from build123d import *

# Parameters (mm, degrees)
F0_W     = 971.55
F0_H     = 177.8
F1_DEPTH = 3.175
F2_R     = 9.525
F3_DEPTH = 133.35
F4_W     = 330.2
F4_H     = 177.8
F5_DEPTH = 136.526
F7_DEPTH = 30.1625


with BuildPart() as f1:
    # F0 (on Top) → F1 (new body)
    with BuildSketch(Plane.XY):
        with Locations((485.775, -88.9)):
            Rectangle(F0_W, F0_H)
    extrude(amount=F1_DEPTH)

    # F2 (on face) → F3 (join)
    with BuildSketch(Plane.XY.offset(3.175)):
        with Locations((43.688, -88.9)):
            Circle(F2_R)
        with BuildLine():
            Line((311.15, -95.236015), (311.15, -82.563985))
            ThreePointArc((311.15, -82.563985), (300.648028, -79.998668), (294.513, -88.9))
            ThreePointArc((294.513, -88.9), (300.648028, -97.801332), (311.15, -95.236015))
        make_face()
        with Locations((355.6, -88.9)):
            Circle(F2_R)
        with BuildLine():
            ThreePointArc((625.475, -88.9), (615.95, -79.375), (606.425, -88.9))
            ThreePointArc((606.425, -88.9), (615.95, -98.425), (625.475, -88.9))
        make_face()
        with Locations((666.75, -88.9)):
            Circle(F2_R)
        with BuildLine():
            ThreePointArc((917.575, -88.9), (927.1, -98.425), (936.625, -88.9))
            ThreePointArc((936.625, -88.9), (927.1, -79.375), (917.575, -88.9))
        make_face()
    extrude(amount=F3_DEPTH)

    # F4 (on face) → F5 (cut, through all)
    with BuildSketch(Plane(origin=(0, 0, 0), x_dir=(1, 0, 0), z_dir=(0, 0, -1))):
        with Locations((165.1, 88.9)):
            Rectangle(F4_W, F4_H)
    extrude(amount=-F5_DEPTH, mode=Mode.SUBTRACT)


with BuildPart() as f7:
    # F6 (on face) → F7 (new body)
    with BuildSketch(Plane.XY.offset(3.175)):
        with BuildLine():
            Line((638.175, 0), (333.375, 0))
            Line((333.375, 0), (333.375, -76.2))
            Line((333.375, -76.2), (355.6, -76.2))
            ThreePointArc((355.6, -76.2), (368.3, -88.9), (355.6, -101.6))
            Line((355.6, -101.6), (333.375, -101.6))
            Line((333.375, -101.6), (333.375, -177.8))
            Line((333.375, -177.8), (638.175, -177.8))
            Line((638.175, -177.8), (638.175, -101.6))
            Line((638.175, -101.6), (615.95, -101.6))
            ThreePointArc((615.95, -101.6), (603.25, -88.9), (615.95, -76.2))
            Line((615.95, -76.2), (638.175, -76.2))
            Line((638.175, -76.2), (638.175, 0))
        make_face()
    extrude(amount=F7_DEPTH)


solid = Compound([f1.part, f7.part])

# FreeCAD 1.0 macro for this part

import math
import FreeCAD as App
import Part
import Sketcher
Q = App.Units.Quantity

doc = App.newDocument("Part")
body = doc.addObject("PartDesign::Body", "Body")

# Sketch on XY plane
sketch1 = doc.addObject("Sketcher::SketchObject", "Sketch")
body.addObject(sketch1)
sketch1.AttachmentSupport = (doc.XY_Plane, [""])
sketch1.MapMode = "FlatFace"
sketch1.addGeometry(Part.LineSegment(App.Vector(0, 0, 0), App.Vector(0, -178, 0)), False)
sketch1.addGeometry(Part.LineSegment(App.Vector(0, -178, 0), App.Vector(972, -178, 0)), False)
sketch1.addGeometry(Part.LineSegment(App.Vector(972, -178, 0), App.Vector(972, 0, 0)), False)
sketch1.addGeometry(Part.LineSegment(App.Vector(972, 0, 0), App.Vector(0, 0, 0)), False)
sketch1.addConstraint(Sketcher.Constraint("Coincident", 0, 2, 1, 1))
sketch1.addConstraint(Sketcher.Constraint("Coincident", 1, 2, 2, 1))
sketch1.addConstraint(Sketcher.Constraint("Coincident", 2, 2, 3, 1))
sketch1.addConstraint(Sketcher.Constraint("Coincident", 3, 2, 0, 1))
sketch1.addConstraint(Sketcher.Constraint("Vertical", 0))
sketch1.addConstraint(Sketcher.Constraint("Horizontal", 1))
sketch1.addConstraint(Sketcher.Constraint("Vertical", 2))
sketch1.addConstraint(Sketcher.Constraint("Horizontal", 3))
sketch1.addConstraint(Sketcher.Constraint("Coincident", 3, 2, -1, 1))
sketch1.addConstraint(Sketcher.Constraint("DistanceY", 0, 2, 0, 1, Q("7 in")))
sketch1.addConstraint(Sketcher.Constraint("DistanceX", 1, 1, 1, 2, Q("38.25 in")))
pad1 = doc.addObject("PartDesign::Pad", "Pad")
body.addObject(pad1)
pad1.Profile = sketch1
pad1.Length = Q("0.125 in")

# Sketch on XY plane
sketch2 = doc.addObject("Sketcher::SketchObject", "Sketch001")
body.addObject(sketch2)
sketch2.AttachmentSupport = (doc.XY_Plane, [""])
sketch2.MapMode = "FlatFace"
sketch2.AttachmentOffset = App.Placement(App.Vector(0, 0, 0.125 * 25.4), App.Rotation())
sketch2.addGeometry(Part.Circle(App.Vector(44, -89, 0), App.Vector(0, 0, 1), 10), False)
sketch2.addGeometry(Part.LineSegment(App.Vector(311, -95, 0), App.Vector(311, -83, 0)), False)
sketch2.addGeometry(Part.ArcOfCircle(Part.Circle(App.Vector(304, -89, 0), App.Vector(0, 0, 1), 10), math.radians(42), math.radians(180)), False)
sketch2.addGeometry(Part.ArcOfCircle(Part.Circle(App.Vector(304, -89, 0), App.Vector(0, 0, 1), 10), math.radians(-180), math.radians(-42)), False)
sketch2.addGeometry(Part.Circle(App.Vector(356, -89, 0), App.Vector(0, 0, 1), 10), False)
sketch2.addGeometry(Part.Circle(App.Vector(616, -89, 0), App.Vector(0, 0, 1), 10), False)
sketch2.addGeometry(Part.Circle(App.Vector(667, -89, 0), App.Vector(0, 0, 1), 10), False)
sketch2.addGeometry(Part.Circle(App.Vector(927, -89, 0), App.Vector(0, 0, 1), 10), False)
sketch2.addConstraint(Sketcher.Constraint("Coincident", 1, 2, 2, 1))
sketch2.addConstraint(Sketcher.Constraint("Tangent", 2, 2, 3, 1))
sketch2.addConstraint(Sketcher.Constraint("Coincident", 3, 2, 1, 1))
sketch2.addConstraint(Sketcher.Constraint("Vertical", 1))
sketch2.addConstraint(Sketcher.Constraint("Equal", 0, 2))
sketch2.addConstraint(Sketcher.Constraint("Equal", 2, 3))
sketch2.addConstraint(Sketcher.Constraint("Equal", 3, 4))
sketch2.addConstraint(Sketcher.Constraint("Equal", 4, 5))
sketch2.addConstraint(Sketcher.Constraint("Equal", 5, 6))
sketch2.addConstraint(Sketcher.Constraint("Equal", 6, 7))
sketch2.addConstraint(Sketcher.Constraint("Horizontal", 0, 3, 2, 3))
sketch2.addConstraint(Sketcher.Constraint("Horizontal", 3, 3, 4, 3))
sketch2.addConstraint(Sketcher.Constraint("Horizontal", 4, 3, 5, 3))
sketch2.addConstraint(Sketcher.Constraint("Horizontal", 5, 3, 6, 3))
sketch2.addConstraint(Sketcher.Constraint("Horizontal", 6, 3, 7, 3))
sketch2.addConstraint(Sketcher.Constraint("Horizontal", 7, 3, 2, 2))
sketch2.addConstraint(Sketcher.Constraint("Diameter", 0, Q("0.75 in")))
sketch2.addConstraint(Sketcher.Constraint("DistanceX", -1, 1, 4, 3, Q("14 in")))
sketch2.addConstraint(Sketcher.Constraint("DistanceX", 5, 3, 6, 3, Q("2 in")))
sketch2.addConstraint(Sketcher.Constraint("DistanceX", 1, 2, 5, 3, Q("12 in")))
sketch2.addConstraint(Sketcher.Constraint("DistanceY", 0, 3, -1, 1, Q("3.5 in")))
sketch2.addConstraint(Sketcher.Constraint("DistanceX", -1, 1, 7, 3, Q("36.5 in")))
sketch2.addConstraint(Sketcher.Constraint("DistanceX", -1, 1, 0, 3, Q("1.72 in")))
sketch2.addConstraint(Sketcher.Constraint("DistanceX", -1, 1, 2, 3, Q("11.97 in")))
sketch2.addConstraint(Sketcher.Constraint("DistanceX", -1, 1, 5, 3, Q("24.25 in")))
pad2 = doc.addObject("PartDesign::Pad", "Pad001")
body.addObject(pad2)
pad2.Profile = sketch2
pad2.Length = Q("5.25 in")

# Sketch on XY plane
sketch3 = doc.addObject("Sketcher::SketchObject", "Sketch002")
body.addObject(sketch3)
sketch3.AttachmentSupport = (doc.XY_Plane, [""])
sketch3.MapMode = "FlatFace"
sketch3.addGeometry(Part.LineSegment(App.Vector(0, -178, 0), App.Vector(0, 0, 0)), False)
sketch3.addGeometry(Part.LineSegment(App.Vector(0, 0, 0), App.Vector(330, 0, 0)), False)
sketch3.addGeometry(Part.LineSegment(App.Vector(330, 0, 0), App.Vector(330, -178, 0)), False)
sketch3.addGeometry(Part.LineSegment(App.Vector(330, -178, 0), App.Vector(0, -178, 0)), False)
sketch3.addConstraint(Sketcher.Constraint("Coincident", 0, 2, 1, 1))
sketch3.addConstraint(Sketcher.Constraint("Coincident", 1, 2, 2, 1))
sketch3.addConstraint(Sketcher.Constraint("Coincident", 2, 2, 3, 1))
sketch3.addConstraint(Sketcher.Constraint("Coincident", 3, 2, 0, 1))
sketch3.addConstraint(Sketcher.Constraint("Vertical", 0))
sketch3.addConstraint(Sketcher.Constraint("Horizontal", 1))
sketch3.addConstraint(Sketcher.Constraint("Vertical", 2))
sketch3.addConstraint(Sketcher.Constraint("Horizontal", 3))
sketch3.addConstraint(Sketcher.Constraint("Coincident", 0, 2, -1, 1))
sketch3.addConstraint(Sketcher.Constraint("DistanceX", 1, 1, 1, 2, Q("13 in")))
sketch3.addConstraint(Sketcher.Constraint("DistanceY", 0, 1, 0, 2, Q("7 in")))
pocket1 = doc.addObject("PartDesign::Pocket", "Pocket")
body.addObject(pocket1)
pocket1.Profile = sketch3
pocket1.Type = "ThroughAll"
pocket1.Reversed = True
body2 = doc.addObject("PartDesign::Body", "Body001")

# Sketch on XY plane
sketch4 = doc.addObject("Sketcher::SketchObject", "Sketch003")
body2.addObject(sketch4)
sketch4.AttachmentSupport = (doc.getObject("XY_Plane001"), [""])
sketch4.MapMode = "FlatFace"
sketch4.AttachmentOffset = App.Placement(App.Vector(0, 0, 0.125 * 25.4), App.Rotation())
sketch4.addGeometry(Part.LineSegment(App.Vector(638, 0, 0), App.Vector(333, 0, 0)), False)
sketch4.addGeometry(Part.LineSegment(App.Vector(333, 0, 0), App.Vector(333, -76, 0)), False)
sketch4.addGeometry(Part.LineSegment(App.Vector(333, -76, 0), App.Vector(356, -76, 0)), False)
sketch4.addGeometry(Part.ArcOfCircle(Part.Circle(App.Vector(356, -89, 0), App.Vector(0, 0, 1), 13), math.radians(-90), math.radians(90)), False)
sketch4.addGeometry(Part.LineSegment(App.Vector(356, -102, 0), App.Vector(333, -102, 0)), False)
sketch4.addGeometry(Part.LineSegment(App.Vector(333, -102, 0), App.Vector(333, -178, 0)), False)
sketch4.addGeometry(Part.LineSegment(App.Vector(333, -178, 0), App.Vector(638, -178, 0)), False)
sketch4.addGeometry(Part.LineSegment(App.Vector(638, -178, 0), App.Vector(638, -102, 0)), False)
sketch4.addGeometry(Part.LineSegment(App.Vector(638, -102, 0), App.Vector(616, -102, 0)), False)
sketch4.addGeometry(Part.ArcOfCircle(Part.Circle(App.Vector(616, -89, 0), App.Vector(0, 0, 1), 13), math.radians(90), math.radians(270)), False)
sketch4.addGeometry(Part.LineSegment(App.Vector(616, -76, 0), App.Vector(638, -76, 0)), False)
sketch4.addGeometry(Part.LineSegment(App.Vector(638, -76, 0), App.Vector(638, 0, 0)), False)
sketch4.addConstraint(Sketcher.Constraint("Coincident", 0, 2, 1, 1))
sketch4.addConstraint(Sketcher.Constraint("Coincident", 1, 2, 2, 1))
sketch4.addConstraint(Sketcher.Constraint("Tangent", 2, 2, 3, 2))
sketch4.addConstraint(Sketcher.Constraint("Tangent", 3, 1, 4, 1))
sketch4.addConstraint(Sketcher.Constraint("Coincident", 4, 2, 5, 1))
sketch4.addConstraint(Sketcher.Constraint("Coincident", 5, 2, 6, 1))
sketch4.addConstraint(Sketcher.Constraint("Coincident", 6, 2, 7, 1))
sketch4.addConstraint(Sketcher.Constraint("Coincident", 7, 2, 8, 1))
sketch4.addConstraint(Sketcher.Constraint("Tangent", 8, 2, 9, 2))
sketch4.addConstraint(Sketcher.Constraint("Tangent", 9, 1, 10, 1))
sketch4.addConstraint(Sketcher.Constraint("Coincident", 10, 2, 11, 1))
sketch4.addConstraint(Sketcher.Constraint("Coincident", 11, 2, 0, 1))
sketch4.addConstraint(Sketcher.Constraint("Horizontal", 0))
sketch4.addConstraint(Sketcher.Constraint("Vertical", 1))
sketch4.addConstraint(Sketcher.Constraint("Horizontal", 2))
sketch4.addConstraint(Sketcher.Constraint("Horizontal", 4))
sketch4.addConstraint(Sketcher.Constraint("Vertical", 5))
sketch4.addConstraint(Sketcher.Constraint("Horizontal", 6))
sketch4.addConstraint(Sketcher.Constraint("Vertical", 7))
sketch4.addConstraint(Sketcher.Constraint("Horizontal", 8))
sketch4.addConstraint(Sketcher.Constraint("Horizontal", 10))
sketch4.addConstraint(Sketcher.Constraint("Vertical", 11))
sketch4.addConstraint(Sketcher.Constraint("Equal", 3, 9))
sketch4.addConstraint(Sketcher.Constraint("PointOnObject", 0, 2, -1))
sketch4.addConstraint(Sketcher.Constraint("Horizontal", 3, 3, 9, 3))
sketch4.addConstraint(Sketcher.Constraint("Vertical", 1, 2, 4, 2))
sketch4.addConstraint(Sketcher.Constraint("Vertical", 7, 2, 10, 2))
sketch4.addConstraint(Sketcher.Constraint("Equal", 4, 8))
sketch4.addConstraint(Sketcher.Constraint("Equal", 1, 5))
sketch4.addConstraint(Sketcher.Constraint("Radius", 3, Q("0.5 in")))
sketch4.addConstraint(Sketcher.Constraint("DistanceX", 0, 2, 0, 1, Q("12 in")))
sketch4.addConstraint(Sketcher.Constraint("DistanceY", 1, 2, 1, 1, Q("3 in")))
sketch4.addConstraint(Sketcher.Constraint("DistanceX", -1, 1, 3, 3, Q("14 in")))
sketch4.addConstraint(Sketcher.Constraint("DistanceX", 2, 1, 2, 2, Q("0.875 in")))
pad3 = doc.addObject("PartDesign::Pad", "Pad002")
body2.addObject(pad3)
pad3.Profile = sketch4
pad3.Length = Q("1.1875 in")

doc.recompute()
